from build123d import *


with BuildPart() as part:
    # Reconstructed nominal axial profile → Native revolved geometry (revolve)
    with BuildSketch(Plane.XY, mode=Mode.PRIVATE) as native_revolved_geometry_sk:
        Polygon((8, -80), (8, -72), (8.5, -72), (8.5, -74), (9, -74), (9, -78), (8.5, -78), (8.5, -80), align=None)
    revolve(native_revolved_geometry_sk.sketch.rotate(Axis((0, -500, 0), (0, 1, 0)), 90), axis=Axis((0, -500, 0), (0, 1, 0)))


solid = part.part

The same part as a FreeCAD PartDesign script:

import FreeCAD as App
import Part
import Sketcher
from FreeCAD import Vector
Q = App.Units.Quantity


def add_polygon(sketch, points):
    """Adds a closed chain of lines whose ends are joined by coincident constraints."""
    first, n = sketch.GeometryCount, len(points)
    for a, b in zip(points, points[1:] + points[:1]):
        sketch.addGeometry(Part.LineSegment(App.Vector(*a, 0), App.Vector(*b, 0)), False)
    for i in range(n):
        sketch.addConstraint(Sketcher.Constraint("Coincident", first + i, 2, first + (i + 1) % n, 1))

doc = App.newDocument("Part")
params = doc.addObject("Spreadsheet::Sheet", "Params")
for row, (alias, value) in enumerate([
    ("sketch1_height", "8 mm"),
    ("sketch1_height2", "2 mm"),
    ("sketch1_width", "0.5 mm"),
    ("revolution_angle", "360 deg"),
], start=1):
    params.set(f"A{row}", alias)
    params.set(f"B{row}", "=" + value)
    params.setAlias(f"B{row}", alias)

body = doc.addObject("PartDesign::Body", "Body")

sketch1 = body.newObject("Sketcher::SketchObject", "Sketch")
sketch1.AttachmentSupport = (doc.getObject("XY_Plane"), [""])
sketch1.MapMode = "FlatFace"
add_polygon(sketch1, [(8, -72), (8, -80), (8.5, -80), (8.5, -78), (9, -78), (9, -74), (8.5, -74), (8.5, -72)])
sketch1.addConstraint([
    Sketcher.Constraint("Vertical", 0),
    Sketcher.Constraint("Horizontal", 1),
    Sketcher.Constraint("Vertical", 2),
    Sketcher.Constraint("Horizontal", 3),
    Sketcher.Constraint("Vertical", 4),
    Sketcher.Constraint("Horizontal", 5),
    Sketcher.Constraint("Vertical", 6),
    Sketcher.Constraint("Horizontal", 7),
    Sketcher.Constraint("Vertical", 2, 2, 5, 2),
    Sketcher.Constraint("Equal", 1, 3),
    Sketcher.Constraint("Equal", 2, 6),
    Sketcher.Constraint("DistanceY", 0, 2, 0, 1, Q("8 mm")),
    Sketcher.Constraint("DistanceY", 2, 1, 2, 2, Q("2 mm")),
    Sketcher.Constraint("DistanceX", 1, 1, 1, 2, Q("0.5 mm")),
    Sketcher.Constraint("DistanceX", -1, 1, 0, 2, Q("8 mm")),
    Sketcher.Constraint("DistanceY", 0, 2, -1, 1, Q("80 mm")),
])
sketch1.setExpression("Constraints[19]", "Params.sketch1_height")
sketch1.setExpression("Constraints[20]", "Params.sketch1_height2")
sketch1.setExpression("Constraints[21]", "Params.sketch1_width")
revolution = body.newObject("PartDesign::Revolution", "Revolution")
revolution.Profile = sketch1
revolution.ReferenceAxis = (sketch1, ["V_Axis"])
revolution.setExpression("Angle", "Params.revolution_angle")

doc.recompute()
